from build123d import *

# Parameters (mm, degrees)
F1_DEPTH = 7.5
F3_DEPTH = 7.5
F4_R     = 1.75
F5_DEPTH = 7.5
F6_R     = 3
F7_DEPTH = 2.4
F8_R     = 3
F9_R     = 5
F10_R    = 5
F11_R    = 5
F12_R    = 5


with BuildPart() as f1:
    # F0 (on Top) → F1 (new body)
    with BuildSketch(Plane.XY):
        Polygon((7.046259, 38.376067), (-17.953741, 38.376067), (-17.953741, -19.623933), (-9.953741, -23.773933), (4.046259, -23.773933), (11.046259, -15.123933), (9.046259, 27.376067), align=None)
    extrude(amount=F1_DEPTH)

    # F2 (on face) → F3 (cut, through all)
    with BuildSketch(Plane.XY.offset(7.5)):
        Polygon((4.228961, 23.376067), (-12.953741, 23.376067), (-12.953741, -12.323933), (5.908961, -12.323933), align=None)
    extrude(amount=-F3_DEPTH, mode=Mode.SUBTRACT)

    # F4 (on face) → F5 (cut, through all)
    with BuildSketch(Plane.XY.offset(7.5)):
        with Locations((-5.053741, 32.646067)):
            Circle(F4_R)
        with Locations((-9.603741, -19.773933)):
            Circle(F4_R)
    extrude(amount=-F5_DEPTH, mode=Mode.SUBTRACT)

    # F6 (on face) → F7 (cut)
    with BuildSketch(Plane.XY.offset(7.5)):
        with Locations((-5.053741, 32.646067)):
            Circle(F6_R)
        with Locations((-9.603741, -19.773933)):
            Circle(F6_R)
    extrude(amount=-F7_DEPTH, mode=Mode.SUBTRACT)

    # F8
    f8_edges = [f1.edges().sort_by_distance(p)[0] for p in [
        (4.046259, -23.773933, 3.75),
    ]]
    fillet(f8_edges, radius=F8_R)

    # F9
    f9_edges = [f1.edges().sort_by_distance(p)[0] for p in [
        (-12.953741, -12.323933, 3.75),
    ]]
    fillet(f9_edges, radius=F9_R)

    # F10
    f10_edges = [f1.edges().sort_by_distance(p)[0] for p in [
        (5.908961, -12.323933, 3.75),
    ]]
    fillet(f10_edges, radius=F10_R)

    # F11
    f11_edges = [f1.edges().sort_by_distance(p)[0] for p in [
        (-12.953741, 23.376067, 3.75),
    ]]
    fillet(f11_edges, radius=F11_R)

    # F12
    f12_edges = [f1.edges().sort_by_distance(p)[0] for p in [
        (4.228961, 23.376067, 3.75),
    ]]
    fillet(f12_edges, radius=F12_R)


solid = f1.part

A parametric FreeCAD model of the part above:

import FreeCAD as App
import Part
import Sketcher
from FreeCAD import Vector
Q = App.Units.Quantity


def edges_at(feature, points):
    """Names of the edges that pass closest to the given points."""
    edges = feature.Shape.Edges
    near = lambda p: min(range(len(edges)), key=lambda i: edges[i].distToShape(Part.Vertex(*p))[0])
    return sorted({f"Edge{near(p) + 1}" for p in points})


def add_polygon(sketch, points):
    """Adds a closed chain of lines whose ends are joined by coincident constraints."""
    first, n = sketch.GeometryCount, len(points)
    for a, b in zip(points, points[1:] + points[:1]):
        sketch.addGeometry(Part.LineSegment(App.Vector(*a, 0), App.Vector(*b, 0)), False)
    for i in range(n):
        sketch.addConstraint(Sketcher.Constraint("Coincident", first + i, 2, first + (i + 1) % n, 1))

doc = App.newDocument("Part")
body = doc.addObject("PartDesign::Body", "Body")

sketch1 = body.newObject("Sketcher::SketchObject", "Sketch")
sketch1.AttachmentSupport = (doc.getObject("XY_Plane"), [""])
sketch1.MapMode = "FlatFace"
add_polygon(sketch1, [(7, 38), (-18, 38), (-18, -20), (-10, -24), (4, -24), (11, -15), (9, 27)])
sketch1.addConstraint([
    Sketcher.Constraint("Horizontal", 0),
    Sketcher.Constraint("Vertical", 1),
    Sketcher.Constraint("Horizontal", 3),
    Sketcher.Constraint("DistanceX", 0, 2, 0, 1, Q("25 mm")),
    Sketcher.Constraint("DistanceX", 3, 1, 3, 2, Q("14 mm")),
    Sketcher.Constraint("DistanceY", 1, 2, 1, 1, Q("58 mm")),
    Sketcher.Constraint("DistanceX", 1, 2, 2, 2, Q("8 mm")),
    Sketcher.Constraint("DistanceX", 3, 2, 4, 2, Q("7 mm")),
    Sketcher.Constraint("DistanceX", 0, 2, 5, 2, Q("27 mm")),
    Sketcher.Constraint("DistanceY", 5, 2, 0, 2, Q("11 mm")),
    Sketcher.Constraint("DistanceY", 1, 2, 4, 2, Q("4.5 mm")),
    Sketcher.Constraint("DistanceY", 2, 2, 1, 2, Q("4.15 mm")),
    Sketcher.Constraint("DistanceX", 0, 2, -1, 1, Q("17.953741 mm")),
    Sketcher.Constraint("DistanceY", -1, 1, 0, 2, Q("38.376067 mm")),
])
pad1 = body.newObject("PartDesign::Pad", "Pad")
pad1.Profile = sketch1
pad1.Length = 7.5

sketch2 = body.newObject("Sketcher::SketchObject", "Sketch001")
sketch2.AttachmentSupport = (doc.getObject("XY_Plane"), [""])
sketch2.MapMode = "FlatFace"
sketch2.AttachmentOffset = App.Placement(Vector(0, 0, 7.5), App.Rotation())
add_polygon(sketch2, [(4, 23), (-13, 23), (-13, -12), (6, -12)])
sketch2.addConstraint([
    Sketcher.Constraint("Horizontal", 0),
    Sketcher.Constraint("Vertical", 1),
    Sketcher.Constraint("Horizontal", 2),
    Sketcher.Constraint("DistanceY", 1, 2, 1, 1, Q("35.7 mm")),
    Sketcher.Constraint("DistanceX", 3, 2, 2, 2, Q("1.68 mm")),
    Sketcher.Constraint("DistanceX", 0, 2, 0, 1, Q("17.182702 mm")),
    Sketcher.Constraint("DistanceX", 0, 2, -1, 1, Q("12.953741 mm")),
    Sketcher.Constraint("DistanceY", -1, 1, 0, 2, Q("23.376067 mm")),
])
pocket1 = body.newObject("PartDesign::Pocket", "Pocket")
pocket1.Profile = sketch2
pocket1.Type = "ThroughAll"

sketch3 = body.newObject("Sketcher::SketchObject", "Sketch002")
sketch3.AttachmentSupport = (doc.getObject("XY_Plane"), [""])
sketch3.MapMode = "FlatFace"
sketch3.AttachmentOffset = App.Placement(Vector(0, 0, 7.5), App.Rotation())
sketch3.addGeometry([
    Part.Circle(Vector(-5.1, 32.6, 0), Vector(0, 0, 1), 1.8),
    Part.Circle(Vector(-9.6, -19.8, 0), Vector(0, 0, 1), 1.8),
], False)
sketch3.addConstraint([
    Sketcher.Constraint("Equal", 0, 1),
    Sketcher.Constraint("Diameter", 0, Q("3.5 mm")),
    Sketcher.Constraint("DistanceX", 1, 3, 0, 3, Q("4.55 mm")),
    Sketcher.Constraint("DistanceY", 1, 3, 0, 3, Q("52.42 mm")),
    Sketcher.Constraint("DistanceX", 0, 3, -1, 1, Q("5.053741 mm")),
    Sketcher.Constraint("DistanceY", -1, 1, 0, 3, Q("32.646067 mm")),
])
pocket2 = body.newObject("PartDesign::Pocket", "Pocket001")
pocket2.Profile = sketch3
pocket2.Type = "ThroughAll"

sketch4 = body.newObject("Sketcher::SketchObject", "Sketch003")
sketch4.AttachmentSupport = (doc.getObject("XY_Plane"), [""])
sketch4.MapMode = "FlatFace"
sketch4.AttachmentOffset = App.Placement(Vector(0, 0, 7.5), App.Rotation())
sketch4.addGeometry([
    Part.Circle(Vector(-5.1, 32.6, 0), Vector(0, 0, 1), 3),
    Part.Circle(Vector(-9.6, -19.8, 0), Vector(0, 0, 1), 3),
], False)
sketch4.addConstraint([
    Sketcher.Constraint("Equal", 0, 1),
    Sketcher.Constraint("Diameter", 0, Q("6 mm")),
    Sketcher.Constraint("DistanceX", 1, 3, 0, 3, Q("4.55 mm")),
    Sketcher.Constraint("DistanceY", 1, 3, 0, 3, Q("52.42 mm")),
    Sketcher.Constraint("DistanceX", 0, 3, -1, 1, Q("5.053741 mm")),
    Sketcher.Constraint("DistanceY", -1, 1, 0, 3, Q("32.646067 mm")),
])
pocket3 = body.newObject("PartDesign::Pocket", "Pocket002")
pocket3.Profile = sketch4
pocket3.Length = 2.4
doc.recompute()

fillet = body.newObject("PartDesign::Fillet", "Fillet")
fillet.Base = (pocket3, edges_at(pocket3, [(4.046, -23.774, 3.75)]))
fillet.Radius = 3
doc.recompute()

fillet2 = body.newObject("PartDesign::Fillet", "Fillet001")
fillet2.Base = (fillet, edges_at(fillet, [(-12.954, -12.324, 3.75)]))
fillet2.Radius = 5
doc.recompute()

fillet3 = body.newObject("PartDesign::Fillet", "Fillet002")
fillet3.Base = (fillet2, edges_at(fillet2, [(5.909, -12.324, 3.75)]))
fillet3.Radius = 5
doc.recompute()

fillet4 = body.newObject("PartDesign::Fillet", "Fillet003")
fillet4.Base = (fillet3, edges_at(fillet3, [(-12.954, 23.376, 3.75)]))
fillet4.Radius = 5
doc.recompute()

fillet5 = body.newObject("PartDesign::Fillet", "Fillet004")
fillet5.Base = (fillet4, edges_at(fillet4, [(4.229, 23.376, 3.75)]))
fillet5.Radius = 5

doc.recompute()
